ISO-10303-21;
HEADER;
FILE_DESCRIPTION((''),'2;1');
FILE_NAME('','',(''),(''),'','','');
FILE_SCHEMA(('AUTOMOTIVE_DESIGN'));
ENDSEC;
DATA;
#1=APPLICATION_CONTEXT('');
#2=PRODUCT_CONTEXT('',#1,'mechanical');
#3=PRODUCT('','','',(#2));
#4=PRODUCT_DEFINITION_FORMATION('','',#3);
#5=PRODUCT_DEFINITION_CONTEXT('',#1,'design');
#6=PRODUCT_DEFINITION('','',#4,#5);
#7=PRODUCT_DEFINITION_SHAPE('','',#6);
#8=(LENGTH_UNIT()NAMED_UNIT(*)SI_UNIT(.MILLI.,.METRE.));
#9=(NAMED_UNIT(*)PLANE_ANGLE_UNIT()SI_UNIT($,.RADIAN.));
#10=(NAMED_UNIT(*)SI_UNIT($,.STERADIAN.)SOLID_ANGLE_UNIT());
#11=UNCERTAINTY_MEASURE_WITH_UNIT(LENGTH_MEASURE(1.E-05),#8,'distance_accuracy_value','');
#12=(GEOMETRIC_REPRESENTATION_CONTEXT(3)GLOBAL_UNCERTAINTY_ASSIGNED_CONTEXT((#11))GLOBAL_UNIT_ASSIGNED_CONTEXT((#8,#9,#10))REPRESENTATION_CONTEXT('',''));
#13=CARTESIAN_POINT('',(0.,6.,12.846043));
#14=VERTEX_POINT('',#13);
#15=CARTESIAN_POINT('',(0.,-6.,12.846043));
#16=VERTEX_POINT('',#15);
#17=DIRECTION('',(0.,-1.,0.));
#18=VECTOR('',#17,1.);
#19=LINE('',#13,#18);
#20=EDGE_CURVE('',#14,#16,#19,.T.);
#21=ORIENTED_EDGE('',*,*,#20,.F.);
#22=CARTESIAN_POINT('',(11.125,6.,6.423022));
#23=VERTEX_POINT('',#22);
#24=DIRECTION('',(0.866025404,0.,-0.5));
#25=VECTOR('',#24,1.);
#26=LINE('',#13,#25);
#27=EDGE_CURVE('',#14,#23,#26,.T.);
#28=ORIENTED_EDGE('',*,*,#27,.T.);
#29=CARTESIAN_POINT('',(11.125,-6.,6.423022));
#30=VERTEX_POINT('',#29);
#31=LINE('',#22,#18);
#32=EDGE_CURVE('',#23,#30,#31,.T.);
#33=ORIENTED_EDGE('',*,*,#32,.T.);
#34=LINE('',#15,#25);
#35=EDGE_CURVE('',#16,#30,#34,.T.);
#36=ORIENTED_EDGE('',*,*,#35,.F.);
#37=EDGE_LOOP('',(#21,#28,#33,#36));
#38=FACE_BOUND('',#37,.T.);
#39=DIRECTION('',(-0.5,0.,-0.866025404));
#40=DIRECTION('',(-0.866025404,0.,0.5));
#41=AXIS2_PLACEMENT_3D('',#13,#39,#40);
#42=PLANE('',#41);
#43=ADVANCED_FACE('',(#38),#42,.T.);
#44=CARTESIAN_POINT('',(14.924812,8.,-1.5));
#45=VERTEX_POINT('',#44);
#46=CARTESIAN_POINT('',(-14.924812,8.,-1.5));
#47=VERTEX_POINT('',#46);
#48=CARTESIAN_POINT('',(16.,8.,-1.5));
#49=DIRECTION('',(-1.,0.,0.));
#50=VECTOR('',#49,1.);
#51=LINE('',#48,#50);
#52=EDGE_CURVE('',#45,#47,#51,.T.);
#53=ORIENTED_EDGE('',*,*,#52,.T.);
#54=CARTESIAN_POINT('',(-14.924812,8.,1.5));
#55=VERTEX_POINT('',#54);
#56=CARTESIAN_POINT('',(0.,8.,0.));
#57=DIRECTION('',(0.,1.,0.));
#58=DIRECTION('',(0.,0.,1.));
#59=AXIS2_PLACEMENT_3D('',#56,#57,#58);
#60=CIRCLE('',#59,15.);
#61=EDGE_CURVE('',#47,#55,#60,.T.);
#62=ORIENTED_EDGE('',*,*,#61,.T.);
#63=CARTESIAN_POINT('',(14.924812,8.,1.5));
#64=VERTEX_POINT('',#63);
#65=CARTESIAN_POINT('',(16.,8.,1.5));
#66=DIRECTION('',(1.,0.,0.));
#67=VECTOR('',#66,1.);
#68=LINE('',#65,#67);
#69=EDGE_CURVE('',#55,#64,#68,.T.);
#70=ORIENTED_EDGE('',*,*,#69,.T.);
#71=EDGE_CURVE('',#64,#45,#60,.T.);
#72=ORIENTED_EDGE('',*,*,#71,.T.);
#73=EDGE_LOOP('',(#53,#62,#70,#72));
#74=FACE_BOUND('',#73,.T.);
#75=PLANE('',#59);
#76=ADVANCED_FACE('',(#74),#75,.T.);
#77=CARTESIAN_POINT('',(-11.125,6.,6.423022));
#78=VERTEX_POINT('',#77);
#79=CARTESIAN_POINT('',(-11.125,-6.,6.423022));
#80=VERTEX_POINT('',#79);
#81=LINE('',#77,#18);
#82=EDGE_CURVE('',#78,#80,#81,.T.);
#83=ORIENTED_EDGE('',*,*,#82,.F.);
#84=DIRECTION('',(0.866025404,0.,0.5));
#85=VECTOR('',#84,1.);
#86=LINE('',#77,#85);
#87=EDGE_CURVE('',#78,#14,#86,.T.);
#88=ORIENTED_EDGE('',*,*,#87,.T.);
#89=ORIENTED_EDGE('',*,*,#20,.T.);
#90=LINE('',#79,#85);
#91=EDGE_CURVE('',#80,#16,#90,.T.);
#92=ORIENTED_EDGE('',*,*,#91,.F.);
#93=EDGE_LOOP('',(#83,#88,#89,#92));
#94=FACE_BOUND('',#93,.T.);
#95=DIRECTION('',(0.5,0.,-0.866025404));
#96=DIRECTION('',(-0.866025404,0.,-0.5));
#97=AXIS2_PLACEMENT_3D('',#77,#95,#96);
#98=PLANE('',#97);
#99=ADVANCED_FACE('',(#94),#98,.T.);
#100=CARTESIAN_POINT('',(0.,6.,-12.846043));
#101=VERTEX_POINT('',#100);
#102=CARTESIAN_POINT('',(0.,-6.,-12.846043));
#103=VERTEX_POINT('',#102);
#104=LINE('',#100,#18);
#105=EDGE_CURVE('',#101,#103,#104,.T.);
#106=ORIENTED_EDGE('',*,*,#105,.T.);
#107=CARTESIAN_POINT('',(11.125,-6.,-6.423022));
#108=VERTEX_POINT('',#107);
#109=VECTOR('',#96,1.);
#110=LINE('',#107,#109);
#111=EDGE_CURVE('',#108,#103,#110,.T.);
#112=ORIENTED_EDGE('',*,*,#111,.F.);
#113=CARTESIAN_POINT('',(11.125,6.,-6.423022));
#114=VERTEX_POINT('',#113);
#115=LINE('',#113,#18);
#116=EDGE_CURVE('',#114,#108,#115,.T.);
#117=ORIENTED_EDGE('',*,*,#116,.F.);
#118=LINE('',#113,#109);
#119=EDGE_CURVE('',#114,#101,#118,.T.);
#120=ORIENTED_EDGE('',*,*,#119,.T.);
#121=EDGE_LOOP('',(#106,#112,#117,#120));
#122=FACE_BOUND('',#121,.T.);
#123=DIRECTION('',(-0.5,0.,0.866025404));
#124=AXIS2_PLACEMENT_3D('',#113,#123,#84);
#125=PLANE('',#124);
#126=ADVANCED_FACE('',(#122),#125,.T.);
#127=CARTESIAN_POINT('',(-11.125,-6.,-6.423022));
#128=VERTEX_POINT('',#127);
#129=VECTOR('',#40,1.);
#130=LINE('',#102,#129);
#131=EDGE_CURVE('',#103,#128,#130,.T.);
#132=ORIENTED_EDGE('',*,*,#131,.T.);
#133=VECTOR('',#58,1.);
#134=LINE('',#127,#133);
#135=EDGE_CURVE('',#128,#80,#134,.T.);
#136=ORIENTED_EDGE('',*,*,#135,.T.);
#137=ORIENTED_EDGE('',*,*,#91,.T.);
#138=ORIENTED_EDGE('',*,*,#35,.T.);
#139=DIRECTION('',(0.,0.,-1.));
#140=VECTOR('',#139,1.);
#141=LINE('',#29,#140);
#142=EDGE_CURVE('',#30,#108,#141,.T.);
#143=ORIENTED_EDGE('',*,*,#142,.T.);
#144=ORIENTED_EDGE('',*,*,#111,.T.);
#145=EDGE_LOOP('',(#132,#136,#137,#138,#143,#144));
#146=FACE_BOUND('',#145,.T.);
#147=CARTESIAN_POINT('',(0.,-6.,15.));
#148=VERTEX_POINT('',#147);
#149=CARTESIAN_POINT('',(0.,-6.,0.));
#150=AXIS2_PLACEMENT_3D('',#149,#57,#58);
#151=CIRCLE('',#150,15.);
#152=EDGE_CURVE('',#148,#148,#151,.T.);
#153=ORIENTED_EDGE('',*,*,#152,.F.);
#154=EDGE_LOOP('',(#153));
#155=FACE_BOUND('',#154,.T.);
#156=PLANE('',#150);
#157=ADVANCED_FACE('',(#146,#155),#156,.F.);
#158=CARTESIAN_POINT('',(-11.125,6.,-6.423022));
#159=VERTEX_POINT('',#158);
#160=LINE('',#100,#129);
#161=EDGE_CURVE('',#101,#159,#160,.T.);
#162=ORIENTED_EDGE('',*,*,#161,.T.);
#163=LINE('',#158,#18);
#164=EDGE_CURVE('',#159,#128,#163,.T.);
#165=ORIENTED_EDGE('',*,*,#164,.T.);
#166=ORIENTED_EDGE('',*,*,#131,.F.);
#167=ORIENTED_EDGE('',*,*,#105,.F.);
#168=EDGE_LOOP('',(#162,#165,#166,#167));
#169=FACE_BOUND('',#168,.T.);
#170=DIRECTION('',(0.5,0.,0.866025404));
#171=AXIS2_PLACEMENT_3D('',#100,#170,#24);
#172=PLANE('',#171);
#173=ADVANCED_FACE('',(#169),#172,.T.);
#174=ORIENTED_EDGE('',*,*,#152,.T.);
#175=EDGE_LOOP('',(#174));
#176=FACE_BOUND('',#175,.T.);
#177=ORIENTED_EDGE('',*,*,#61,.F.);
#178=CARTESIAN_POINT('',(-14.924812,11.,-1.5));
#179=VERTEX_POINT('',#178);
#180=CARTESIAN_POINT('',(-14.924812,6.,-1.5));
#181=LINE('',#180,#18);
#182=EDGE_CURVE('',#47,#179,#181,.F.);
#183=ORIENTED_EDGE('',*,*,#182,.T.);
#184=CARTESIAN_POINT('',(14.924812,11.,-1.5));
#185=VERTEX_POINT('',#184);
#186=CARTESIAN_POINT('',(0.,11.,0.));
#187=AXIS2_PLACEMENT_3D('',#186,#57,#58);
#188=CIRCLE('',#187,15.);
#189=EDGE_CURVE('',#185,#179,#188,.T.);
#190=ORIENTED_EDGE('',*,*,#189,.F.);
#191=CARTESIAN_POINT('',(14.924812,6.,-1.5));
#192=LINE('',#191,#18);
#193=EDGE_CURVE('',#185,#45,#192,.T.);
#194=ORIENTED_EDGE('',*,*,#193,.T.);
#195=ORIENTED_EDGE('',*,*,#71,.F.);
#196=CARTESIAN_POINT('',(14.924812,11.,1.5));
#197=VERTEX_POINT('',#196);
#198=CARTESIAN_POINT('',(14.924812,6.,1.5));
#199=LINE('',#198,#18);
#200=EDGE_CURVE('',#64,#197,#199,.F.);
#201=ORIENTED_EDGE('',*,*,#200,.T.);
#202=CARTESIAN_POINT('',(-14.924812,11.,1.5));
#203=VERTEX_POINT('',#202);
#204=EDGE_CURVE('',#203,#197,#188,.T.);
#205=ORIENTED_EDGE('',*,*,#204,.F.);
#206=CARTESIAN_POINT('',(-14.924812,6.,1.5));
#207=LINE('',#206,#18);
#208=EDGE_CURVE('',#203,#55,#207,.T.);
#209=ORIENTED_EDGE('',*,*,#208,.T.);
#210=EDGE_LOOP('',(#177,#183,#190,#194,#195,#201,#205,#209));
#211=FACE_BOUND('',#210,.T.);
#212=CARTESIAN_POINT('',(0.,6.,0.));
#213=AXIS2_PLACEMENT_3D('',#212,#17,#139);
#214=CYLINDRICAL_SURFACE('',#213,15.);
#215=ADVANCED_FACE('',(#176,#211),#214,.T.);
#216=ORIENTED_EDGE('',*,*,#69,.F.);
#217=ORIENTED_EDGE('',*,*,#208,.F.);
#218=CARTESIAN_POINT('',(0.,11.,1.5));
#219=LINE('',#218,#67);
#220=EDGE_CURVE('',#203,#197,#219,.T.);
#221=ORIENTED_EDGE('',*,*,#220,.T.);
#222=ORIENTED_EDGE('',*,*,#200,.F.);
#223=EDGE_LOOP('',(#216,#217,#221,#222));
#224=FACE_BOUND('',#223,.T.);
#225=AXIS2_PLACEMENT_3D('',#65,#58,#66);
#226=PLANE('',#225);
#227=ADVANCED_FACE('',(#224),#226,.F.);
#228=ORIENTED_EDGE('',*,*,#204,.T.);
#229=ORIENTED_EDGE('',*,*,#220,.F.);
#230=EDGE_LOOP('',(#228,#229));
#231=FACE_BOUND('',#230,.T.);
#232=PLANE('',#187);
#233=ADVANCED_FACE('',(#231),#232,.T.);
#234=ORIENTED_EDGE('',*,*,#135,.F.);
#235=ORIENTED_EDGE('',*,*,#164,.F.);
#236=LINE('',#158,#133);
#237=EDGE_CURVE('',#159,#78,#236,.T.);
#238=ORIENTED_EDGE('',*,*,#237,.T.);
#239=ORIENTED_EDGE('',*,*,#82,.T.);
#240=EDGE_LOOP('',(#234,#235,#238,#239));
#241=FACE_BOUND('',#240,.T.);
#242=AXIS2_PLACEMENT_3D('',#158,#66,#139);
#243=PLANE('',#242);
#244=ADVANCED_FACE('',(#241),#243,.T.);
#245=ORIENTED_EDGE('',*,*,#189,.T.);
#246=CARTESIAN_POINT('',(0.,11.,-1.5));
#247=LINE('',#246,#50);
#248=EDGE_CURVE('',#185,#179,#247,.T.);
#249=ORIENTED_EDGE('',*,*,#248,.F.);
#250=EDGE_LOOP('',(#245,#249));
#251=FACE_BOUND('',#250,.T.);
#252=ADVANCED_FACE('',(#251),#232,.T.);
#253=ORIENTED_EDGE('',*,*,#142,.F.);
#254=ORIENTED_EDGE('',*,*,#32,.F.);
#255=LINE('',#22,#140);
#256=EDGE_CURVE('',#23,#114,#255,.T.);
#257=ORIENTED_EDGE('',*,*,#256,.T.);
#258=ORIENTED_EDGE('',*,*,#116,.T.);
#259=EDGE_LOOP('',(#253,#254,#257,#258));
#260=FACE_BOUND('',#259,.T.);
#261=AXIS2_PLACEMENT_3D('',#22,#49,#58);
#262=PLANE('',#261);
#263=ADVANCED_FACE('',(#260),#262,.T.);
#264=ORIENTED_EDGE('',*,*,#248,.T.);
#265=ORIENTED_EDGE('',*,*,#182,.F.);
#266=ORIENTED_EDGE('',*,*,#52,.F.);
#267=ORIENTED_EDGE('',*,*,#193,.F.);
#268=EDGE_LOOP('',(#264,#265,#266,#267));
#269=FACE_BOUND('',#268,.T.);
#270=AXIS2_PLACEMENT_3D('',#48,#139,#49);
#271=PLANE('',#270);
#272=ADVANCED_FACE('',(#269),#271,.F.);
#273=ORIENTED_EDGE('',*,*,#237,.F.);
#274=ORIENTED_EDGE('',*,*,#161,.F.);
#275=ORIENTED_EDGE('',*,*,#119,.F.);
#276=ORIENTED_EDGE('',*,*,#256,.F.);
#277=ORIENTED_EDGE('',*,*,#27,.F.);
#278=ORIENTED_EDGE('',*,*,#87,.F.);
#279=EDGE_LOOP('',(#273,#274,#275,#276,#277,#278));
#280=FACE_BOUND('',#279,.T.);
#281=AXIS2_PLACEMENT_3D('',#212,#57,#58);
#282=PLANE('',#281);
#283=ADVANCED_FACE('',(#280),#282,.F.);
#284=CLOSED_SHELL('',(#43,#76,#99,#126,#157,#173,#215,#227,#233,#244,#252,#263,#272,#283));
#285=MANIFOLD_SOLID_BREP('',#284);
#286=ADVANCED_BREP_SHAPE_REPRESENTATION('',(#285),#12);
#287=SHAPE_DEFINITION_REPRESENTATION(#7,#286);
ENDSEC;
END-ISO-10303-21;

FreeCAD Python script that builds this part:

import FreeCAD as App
import Part
import Sketcher
from FreeCAD import Vector
Q = App.Units.Quantity


def add_polygon(sketch, points):
    """Adds a closed chain of lines whose ends are joined by coincident constraints."""
    first, n = sketch.GeometryCount, len(points)
    for a, b in zip(points, points[1:] + points[:1]):
        sketch.addGeometry(Part.LineSegment(App.Vector(*a, 0), App.Vector(*b, 0)), False)
    for i in range(n):
        sketch.addConstraint(Sketcher.Constraint("Coincident", first + i, 2, first + (i + 1) % n, 1))

doc = App.newDocument("Part")
body = doc.addObject("PartDesign::Body", "Body")

sketch1 = body.newObject("Sketcher::SketchObject", "Sketch")
sketch1.AttachmentSupport = (doc.getObject("XZ_Plane"), [""])
sketch1.MapMode = "FlatFace"
sketch1.addGeometry(Part.Circle(Vector(0, 0, 0), Vector(0, 0, 1), 15), False)
add_polygon(sketch1, [(-11, -6), (0, -13), (11, -6), (11, 6), (0, 13), (-11, 6)])
sketch1.addConstraint([
    Sketcher.Constraint("Vertical", 3),
    Sketcher.Constraint("Vertical", 6),
    Sketcher.Constraint("Coincident", 0, 3, -1, 1),
    Sketcher.Constraint("Symmetric", 1, 2, 4, 2, -1, 1),
    Sketcher.Constraint("Symmetric", 2, 2, 5, 2, -1, 1),
    Sketcher.Constraint("PointOnObject", 1, 2, -2),
    Sketcher.Constraint("Parallel", 1, 4),
    Sketcher.Constraint("Horizontal", 3, 2, 5, 2),
    Sketcher.Constraint("Diameter", 0, 30.0),
    Sketcher.Constraint("Angle", 1, Q("-30 deg")),
    Sketcher.Constraint("DistanceX", 5, 2, 3, 2, 22.25),
    Sketcher.Constraint("DistanceY", 3, 1, 3, 2, 12.846043),
])
pad1 = body.newObject("PartDesign::Pad", "Pad")
pad1.Profile = sketch1
pad1.Length = 12
pad1.Midplane = True

sketch2 = body.newObject("Sketcher::SketchObject", "Sketch001")
sketch2.AttachmentSupport = (doc.getObject("XZ_Plane"), [""])
sketch2.MapMode = "FlatFace"
sketch2.AttachmentOffset = App.Placement(Vector(0, 0, -11), App.Rotation())
sketch2.addGeometry(Part.Circle(Vector(0, 0, 0), Vector(0, 0, 1), 15), False)
sketch2.addConstraint([
    Sketcher.Constraint("Coincident", 0, 3, -1, 1),
    Sketcher.Constraint("Diameter", 0, 30.0),
])
pad2 = body.newObject("PartDesign::Pad", "Pad001")
pad2.Profile = sketch2
pad2.Length = 5

sketch3 = body.newObject("Sketcher::SketchObject", "Sketch002")
sketch3.AttachmentSupport = (doc.getObject("XZ_Plane"), [""])
sketch3.MapMode = "FlatFace"
sketch3.AttachmentOffset = App.Placement(Vector(0, 0, -11), App.Rotation())
add_polygon(sketch3, [(-16, -1.5), (-16, 1.5), (16, 1.5), (16, -1.5)])
sketch3.addConstraint([
    Sketcher.Constraint("Vertical", 0),
    Sketcher.Constraint("Horizontal", 1),
    Sketcher.Constraint("Vertical", 2),
    Sketcher.Constraint("Horizontal", 3),
    Sketcher.Constraint("Symmetric", 0, 2, 2, 2, -1, 1),
    Sketcher.Constraint("DistanceX", 1, 1, 1, 2, 32.0),
    Sketcher.Constraint("DistanceY", 0, 1, 0, 2, 3.0),
])
pocket1 = body.newObject("PartDesign::Pocket", "Pocket")
pocket1.Profile = sketch3
pocket1.Length = 3
pocket1.Reversed = True

doc.recompute()
